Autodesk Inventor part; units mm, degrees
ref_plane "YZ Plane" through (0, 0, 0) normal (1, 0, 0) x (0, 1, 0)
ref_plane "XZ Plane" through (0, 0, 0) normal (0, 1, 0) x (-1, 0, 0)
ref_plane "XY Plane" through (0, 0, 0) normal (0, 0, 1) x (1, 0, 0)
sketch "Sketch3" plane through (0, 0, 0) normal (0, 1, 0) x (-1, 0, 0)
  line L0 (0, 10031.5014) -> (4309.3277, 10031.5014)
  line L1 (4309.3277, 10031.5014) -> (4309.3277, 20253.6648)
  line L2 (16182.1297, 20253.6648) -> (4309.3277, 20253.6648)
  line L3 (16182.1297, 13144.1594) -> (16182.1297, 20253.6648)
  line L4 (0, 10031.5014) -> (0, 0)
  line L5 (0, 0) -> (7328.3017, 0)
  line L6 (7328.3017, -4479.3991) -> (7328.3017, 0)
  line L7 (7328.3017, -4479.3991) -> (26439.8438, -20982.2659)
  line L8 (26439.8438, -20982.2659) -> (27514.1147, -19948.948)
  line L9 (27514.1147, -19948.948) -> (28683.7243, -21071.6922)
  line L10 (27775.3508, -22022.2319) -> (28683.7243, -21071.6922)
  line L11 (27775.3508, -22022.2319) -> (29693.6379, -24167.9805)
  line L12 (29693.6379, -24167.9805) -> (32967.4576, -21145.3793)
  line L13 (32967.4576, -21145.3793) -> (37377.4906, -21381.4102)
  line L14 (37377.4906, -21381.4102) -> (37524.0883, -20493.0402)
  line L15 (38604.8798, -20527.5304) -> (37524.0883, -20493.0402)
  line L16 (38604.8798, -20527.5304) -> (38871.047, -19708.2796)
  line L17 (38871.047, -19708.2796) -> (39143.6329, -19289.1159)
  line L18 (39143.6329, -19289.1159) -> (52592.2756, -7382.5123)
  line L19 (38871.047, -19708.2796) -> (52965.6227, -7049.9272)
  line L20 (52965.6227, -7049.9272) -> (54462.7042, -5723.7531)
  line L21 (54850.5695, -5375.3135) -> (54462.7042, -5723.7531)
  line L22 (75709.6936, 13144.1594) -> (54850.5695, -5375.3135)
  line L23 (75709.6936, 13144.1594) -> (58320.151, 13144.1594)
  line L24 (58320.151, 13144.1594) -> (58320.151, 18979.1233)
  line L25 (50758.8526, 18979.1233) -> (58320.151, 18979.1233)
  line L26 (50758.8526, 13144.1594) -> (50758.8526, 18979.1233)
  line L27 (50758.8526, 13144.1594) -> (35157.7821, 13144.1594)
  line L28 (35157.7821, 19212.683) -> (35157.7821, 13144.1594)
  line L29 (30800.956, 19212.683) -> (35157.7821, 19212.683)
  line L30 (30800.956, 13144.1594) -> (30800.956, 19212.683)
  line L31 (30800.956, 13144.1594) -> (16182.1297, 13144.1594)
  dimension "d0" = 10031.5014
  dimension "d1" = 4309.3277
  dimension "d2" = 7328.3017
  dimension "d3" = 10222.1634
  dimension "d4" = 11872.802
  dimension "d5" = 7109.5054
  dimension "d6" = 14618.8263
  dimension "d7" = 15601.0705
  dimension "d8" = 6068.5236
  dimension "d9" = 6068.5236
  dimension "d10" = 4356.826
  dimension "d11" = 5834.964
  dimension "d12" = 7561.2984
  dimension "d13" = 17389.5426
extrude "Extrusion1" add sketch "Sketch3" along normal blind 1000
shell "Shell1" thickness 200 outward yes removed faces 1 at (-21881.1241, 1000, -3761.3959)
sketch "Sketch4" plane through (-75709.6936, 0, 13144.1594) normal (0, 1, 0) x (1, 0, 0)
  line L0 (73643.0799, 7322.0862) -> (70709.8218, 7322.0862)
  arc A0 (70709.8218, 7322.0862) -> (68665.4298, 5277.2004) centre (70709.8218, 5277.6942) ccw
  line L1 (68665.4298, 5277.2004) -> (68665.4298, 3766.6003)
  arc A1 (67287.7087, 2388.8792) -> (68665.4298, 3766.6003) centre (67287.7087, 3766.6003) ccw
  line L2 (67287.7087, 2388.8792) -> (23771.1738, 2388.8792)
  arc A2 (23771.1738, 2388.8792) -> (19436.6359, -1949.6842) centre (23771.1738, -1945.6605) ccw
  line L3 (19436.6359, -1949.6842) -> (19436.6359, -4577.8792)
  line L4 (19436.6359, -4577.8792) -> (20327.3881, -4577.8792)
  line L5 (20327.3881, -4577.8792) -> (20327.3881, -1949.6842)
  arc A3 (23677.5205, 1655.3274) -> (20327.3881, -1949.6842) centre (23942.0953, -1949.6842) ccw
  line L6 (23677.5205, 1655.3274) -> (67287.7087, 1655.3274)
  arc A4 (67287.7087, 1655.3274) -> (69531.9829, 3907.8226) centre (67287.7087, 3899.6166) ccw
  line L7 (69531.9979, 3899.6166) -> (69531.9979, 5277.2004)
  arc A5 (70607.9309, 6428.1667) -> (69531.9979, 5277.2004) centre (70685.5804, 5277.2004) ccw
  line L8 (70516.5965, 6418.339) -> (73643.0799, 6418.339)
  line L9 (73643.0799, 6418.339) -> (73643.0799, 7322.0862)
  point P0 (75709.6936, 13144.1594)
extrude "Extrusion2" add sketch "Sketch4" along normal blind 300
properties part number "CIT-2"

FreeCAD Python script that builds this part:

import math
import FreeCAD as App
import Part
import Sketcher
Q = App.Units.Quantity


def faces_at(feature, points):
    """Names of the faces that lie closest to the given points."""
    faces = feature.Shape.Faces
    near = lambda p: min(range(len(faces)), key=lambda i: faces[i].distToShape(Part.Vertex(*p))[0])
    return sorted({f"Face{near(p) + 1}" for p in points})

doc = App.newDocument("Part")
body = doc.addObject("PartDesign::Body", "Body")

# Sketch on XZ plane
sketch1 = body.newObject("Sketcher::SketchObject", "Sketch")
sketch1.AttachmentSupport = (doc.getObject("XZ_Plane"), [""])
sketch1.MapMode = "FlatFace"
sketch1.addGeometry([
    Part.LineSegment(App.Vector(-4309.3277, 10031.5014, 0), App.Vector(0, 10031.5014, 0)),  # 0
    Part.LineSegment(App.Vector(0, 10031.5014, 0), App.Vector(0, 0, 0)),  # 1
    Part.LineSegment(App.Vector(0, 0, 0), App.Vector(-7328.3017, 0, 0)),  # 2
    Part.LineSegment(App.Vector(-7328.3017, 0, 0), App.Vector(-7328.3017, -4479.3991, 0)),  # 3
    Part.LineSegment(App.Vector(-7328.3017, -4479.3991, 0), App.Vector(-26439.8438, -20982.2659, 0)),  # 4
    Part.LineSegment(App.Vector(-26439.8438, -20982.2659, 0), App.Vector(-27514.1147, -19948.948, 0)),  # 5
    Part.LineSegment(App.Vector(-27514.1147, -19948.948, 0), App.Vector(-28683.7243, -21071.6922, 0)),  # 6
    Part.LineSegment(App.Vector(-28683.7243, -21071.6922, 0), App.Vector(-27775.3508, -22022.2319, 0)),  # 7
    Part.LineSegment(App.Vector(-27775.3508, -22022.2319, 0), App.Vector(-29693.6379, -24167.9805, 0)),  # 8
    Part.LineSegment(App.Vector(-29693.6379, -24167.9805, 0), App.Vector(-32967.4576, -21145.3793, 0)),  # 9
    Part.LineSegment(App.Vector(-32967.4576, -21145.3793, 0), App.Vector(-37377.4906, -21381.4102, 0)),  # 10
    Part.LineSegment(App.Vector(-37377.4906, -21381.4102, 0), App.Vector(-37524.0883, -20493.0402, 0)),  # 11
    Part.LineSegment(App.Vector(-37524.0883, -20493.0402, 0), App.Vector(-38604.8798, -20527.5304, 0)),  # 12
    Part.LineSegment(App.Vector(-38604.8798, -20527.5304, 0), App.Vector(-38871.047, -19708.2796, 0)),  # 13
    Part.LineSegment(App.Vector(-38871.047, -19708.2796, 0), App.Vector(-52965.6227, -7049.9272, 0)),  # 14
    Part.LineSegment(App.Vector(-52965.6227, -7049.9272, 0), App.Vector(-54462.7042, -5723.7531, 0)),  # 15
    Part.LineSegment(App.Vector(-54462.7042, -5723.7531, 0), App.Vector(-54850.5695, -5375.3135, 0)),  # 16
    Part.LineSegment(App.Vector(-54850.5695, -5375.3135, 0), App.Vector(-75709.6936, 13144.1594, 0)),  # 17
    Part.LineSegment(App.Vector(-75709.6936, 13144.1594, 0), App.Vector(-58320.151, 13144.1594, 0)),  # 18
    Part.LineSegment(App.Vector(-58320.151, 13144.1594, 0), App.Vector(-58320.151, 18979.1233, 0)),  # 19
    Part.LineSegment(App.Vector(-58320.151, 18979.1233, 0), App.Vector(-50758.8526, 18979.1233, 0)),  # 20
    Part.LineSegment(App.Vector(-50758.8526, 18979.1233, 0), App.Vector(-50758.8526, 13144.1594, 0)),  # 21
    Part.LineSegment(App.Vector(-50758.8526, 13144.1594, 0), App.Vector(-35157.7821, 13144.1594, 0)),  # 22
    Part.LineSegment(App.Vector(-35157.7821, 13144.1594, 0), App.Vector(-35157.7821, 19212.683, 0)),  # 23
    Part.LineSegment(App.Vector(-35157.7821, 19212.683, 0), App.Vector(-30800.956, 19212.683, 0)),  # 24
    Part.LineSegment(App.Vector(-30800.956, 19212.683, 0), App.Vector(-30800.956, 13144.1594, 0)),  # 25
    Part.LineSegment(App.Vector(-30800.956, 13144.1594, 0), App.Vector(-16182.1297, 13144.1594, 0)),  # 26
    Part.LineSegment(App.Vector(-16182.1297, 13144.1594, 0), App.Vector(-16182.1297, 20253.6648, 0)),  # 27
    Part.LineSegment(App.Vector(-16182.1297, 20253.6648, 0), App.Vector(-4309.3277, 20253.6648, 0)),  # 28
    Part.LineSegment(App.Vector(-4309.3277, 20253.6648, 0), App.Vector(-4309.3277, 10031.5014, 0)),  # 29
], False)
sketch1.addConstraint([
    Sketcher.Constraint("Coincident", 0, 2, 1, 1),
    Sketcher.Constraint("Coincident", 1, 2, 2, 1),
    Sketcher.Constraint("Coincident", 2, 2, 3, 1),
    Sketcher.Constraint("Coincident", 3, 2, 4, 1),
    Sketcher.Constraint("Coincident", 4, 2, 5, 1),
    Sketcher.Constraint("Coincident", 5, 2, 6, 1),
    Sketcher.Constraint("Coincident", 6, 2, 7, 1),
    Sketcher.Constraint("Coincident", 7, 2, 8, 1),
    Sketcher.Constraint("Coincident", 8, 2, 9, 1),
    Sketcher.Constraint("Coincident", 9, 2, 10, 1),
    Sketcher.Constraint("Coincident", 10, 2, 11, 1),
    Sketcher.Constraint("Coincident", 11, 2, 12, 1),
    Sketcher.Constraint("Coincident", 12, 2, 13, 1),
    Sketcher.Constraint("Coincident", 13, 2, 14, 1),
    Sketcher.Constraint("Coincident", 14, 2, 15, 1),
    Sketcher.Constraint("Coincident", 15, 2, 16, 1),
    Sketcher.Constraint("Coincident", 16, 2, 17, 1),
    Sketcher.Constraint("Coincident", 17, 2, 18, 1),
    Sketcher.Constraint("Coincident", 18, 2, 19, 1),
    Sketcher.Constraint("Coincident", 19, 2, 20, 1),
    Sketcher.Constraint("Coincident", 20, 2, 21, 1),
    Sketcher.Constraint("Coincident", 21, 2, 22, 1),
    Sketcher.Constraint("Coincident", 22, 2, 23, 1),
    Sketcher.Constraint("Coincident", 23, 2, 24, 1),
    Sketcher.Constraint("Coincident", 24, 2, 25, 1),
    Sketcher.Constraint("Coincident", 25, 2, 26, 1),
    Sketcher.Constraint("Coincident", 26, 2, 27, 1),
    Sketcher.Constraint("Coincident", 27, 2, 28, 1),
    Sketcher.Constraint("Coincident", 28, 2, 29, 1),
    Sketcher.Constraint("Coincident", 29, 2, 0, 1),
    Sketcher.Constraint("Horizontal", 0),
    Sketcher.Constraint("Vertical", 1),
    Sketcher.Constraint("Horizontal", 2),
    Sketcher.Constraint("Vertical", 3),
    Sketcher.Constraint("Horizontal", 18),
    Sketcher.Constraint("Vertical", 19),
    Sketcher.Constraint("Horizontal", 20),
    Sketcher.Constraint("Vertical", 21),
    Sketcher.Constraint("Horizontal", 22),
    Sketcher.Constraint("Vertical", 23),
    Sketcher.Constraint("Horizontal", 24),
    Sketcher.Constraint("Vertical", 25),
    Sketcher.Constraint("Horizontal", 26),
    Sketcher.Constraint("Vertical", 27),
    Sketcher.Constraint("Horizontal", 28),
    Sketcher.Constraint("Vertical", 29),
    Sketcher.Constraint("Coincident", 1, 2, -1, 1),
    Sketcher.Constraint("DistanceX", 24, 1, 24, 2, Q("4356.826 mm")),
    Sketcher.Constraint("DistanceX", 28, 1, 28, 2, Q("11872.802 mm")),
    Sketcher.Constraint("DistanceY", 19, 1, 19, 2, Q("5834.964 mm")),
    Sketcher.Constraint("DistanceY", 21, 2, 21, 1, Q("5834.964 mm")),
    Sketcher.Constraint("DistanceX", 0, 1, 0, 2, Q("4309.3277 mm")),
    Sketcher.Constraint("DistanceX", 2, 2, 2, 1, Q("7328.3017 mm")),
    Sketcher.Constraint("DistanceX", 18, 1, 18, 2, Q("17389.5426 mm")),
    Sketcher.Constraint("DistanceX", 20, 1, 20, 2, Q("7561.2984 mm")),
    Sketcher.Constraint("DistanceX", 22, 1, 22, 2, Q("15601.0705 mm")),
    Sketcher.Constraint("DistanceX", 26, 1, 26, 2, Q("14618.8263 mm")),
    Sketcher.Constraint("DistanceY", 1, 2, 1, 1, Q("10031.5014 mm")),
    Sketcher.Constraint("DistanceY", 23, 1, 23, 2, Q("6068.5236 mm")),
    Sketcher.Constraint("DistanceY", 25, 2, 25, 1, Q("6068.5236 mm")),
    Sketcher.Constraint("DistanceY", 27, 1, 27, 2, Q("7109.5054 mm")),
    Sketcher.Constraint("DistanceY", 29, 2, 29, 1, Q("10222.1634 mm")),
    Sketcher.Constraint("DistanceY", 3, 2, 3, 1, Q("4479.399 mm")),
    Sketcher.Constraint("DistanceY", 10, 2, 11, 2, Q("888.37 mm")),
    Sketcher.Constraint("DistanceY", 8, 2, 12, 2, Q("3640.45 mm")),
    Sketcher.Constraint("Distance", 13, Q("861.404 mm")),
    Sketcher.Constraint("Distance", 16, Q("521.392 mm")),
    Sketcher.Constraint("DistanceY", 4, 2, -1, 1, Q("20982.266 mm")),
    Sketcher.Constraint("DistanceY", 5, 2, -1, 1, Q("19948.948 mm")),
    Sketcher.Constraint("DistanceY", 7, 2, -1, 1, Q("22022.232 mm")),
    Sketcher.Constraint("DistanceX", 8, 2, -1, 1, Q("29693.638 mm")),
    Sketcher.Constraint("DistanceX", 13, 2, -1, 1, Q("38871.047 mm")),
    Sketcher.Constraint("DistanceY", 15, 2, -1, 1, Q("5723.753 mm")),
    Sketcher.Constraint("DistanceX", 4, 2, 3, 2, Q("19111.542 mm")),
    Sketcher.Constraint("DistanceX", 5, 2, 4, 2, Q("1074.271 mm")),
    Sketcher.Constraint("DistanceY", 6, 2, 3, 2, Q("16592.293 mm")),
    Sketcher.Constraint("DistanceX", 7, 2, 4, 2, Q("1335.507 mm")),
    Sketcher.Constraint("DistanceY", 9, 2, 6, 2, Q("73.687 mm")),
    Sketcher.Constraint("DistanceX", 9, 2, 5, 2, Q("5453.343 mm")),
    Sketcher.Constraint("DistanceX", 10, 2, 9, 2, Q("4410.033 mm")),
    Sketcher.Constraint("DistanceY", 10, 2, 9, 2, Q("236.031 mm")),
    Sketcher.Constraint("DistanceX", 11, 2, 6, 2, Q("8840.364 mm")),
    Sketcher.Constraint("DistanceY", 9, 2, 12, 2, Q("617.849 mm")),
    Sketcher.Constraint("DistanceX", 12, 2, 8, 2, Q("8911.242 mm")),
    Sketcher.Constraint("DistanceX", 14, 2, 12, 2, Q("14360.743 mm")),
    Sketcher.Constraint("DistanceY", 11, 2, 14, 2, Q("13443.113 mm")),
    Sketcher.Constraint("DistanceX", 15, 2, 11, 2, Q("16938.616 mm")),
    Sketcher.Constraint("DistanceY", 13, 2, 16, 2, Q("14332.966 mm")),
    Sketcher.Constraint("DistanceX", 17, 2, 16, 2, Q("20859.124 mm")),
])
pad1 = body.newObject("PartDesign::Pad", "Pad")
pad1.Profile = sketch1
pad1.Length = 1000
pad1.Reversed = True
doc.recompute()

thickness = body.newObject("PartDesign::Thickness", "Thickness")
thickness.Base = (pad1, faces_at(pad1, [(-21881.124, 1000, -3761.396)]))
thickness.Value = 200
thickness.Reversed = False
thickness.Join = "Intersection"

# Sketch on XZ plane
sketch2 = body.newObject("Sketcher::SketchObject", "Sketch001")
sketch2.AttachmentSupport = (doc.getObject("XZ_Plane"), [""])
sketch2.MapMode = "FlatFace"
sketch2.addGeometry([
    Part.LineSegment(App.Vector(-2066.6137, 6725.8204, 0), App.Vector(-2066.6137, 5822.0732, 0)),  # 0
    Part.LineSegment(App.Vector(-2066.6137, 5822.0732, 0), App.Vector(-4999.8718, 5822.0732, 0)),  # 1
    Part.ArcOfCircle(Part.Circle(App.Vector(-4999.8718, 7866.4652, 0), App.Vector(0, 0, 1), 2044.392), math.radians(179.986161), math.radians(270)),  # 2
    Part.LineSegment(App.Vector(-7044.2638, 7866.959, 0), App.Vector(-7044.2638, 9377.5591, 0)),  # 3
    Part.ArcOfCircle(Part.Circle(App.Vector(-8421.9849, 9377.5591, 0), App.Vector(0, 0, 1), 1377.7211), math.radians(0), math.radians(90)),  # 4
    Part.LineSegment(App.Vector(-8421.9849, 10755.2802, 0), App.Vector(-51938.5198, 10755.2802, 0)),  # 5
    Part.ArcOfCircle(Part.Circle(App.Vector(-51938.5198, 15089.8199, 0), App.Vector(0, 0, 1), 4334.5397), math.radians(179.946813), math.radians(270)),  # 6
    Part.LineSegment(App.Vector(-56273.0577, 15093.8436, 0), App.Vector(-56273.0577, 17722.0386, 0)),  # 7
    Part.LineSegment(App.Vector(-56273.0577, 17722.0386, 0), App.Vector(-55382.3055, 17722.0386, 0)),  # 8
    Part.LineSegment(App.Vector(-55382.3055, 17722.0386, 0), App.Vector(-55382.3055, 15093.8436, 0)),  # 9
    Part.ArcOfCircle(Part.Circle(App.Vector(-51767.5983, 15093.8436, 0), App.Vector(0, 0, 1), 3614.707244), math.radians(180), math.radians(265.80254)),  # 10
    Part.LineSegment(App.Vector(-52032.1731, 11488.832, 0), App.Vector(-8421.9849, 11488.832, 0)),  # 11
    Part.ArcOfCircle(Part.Circle(App.Vector(-8421.9849, 9244.5428, 0), App.Vector(0, 0, 1), 2244.2892), math.radians(0), math.radians(90)),  # 12
    Part.LineSegment(App.Vector(-6177.6957, 9244.5428, 0), App.Vector(-6177.6957, 7866.959, 0)),  # 13
    Part.ArcOfCircle(Part.Circle(App.Vector(-5024.1132, 7866.959, 0), App.Vector(0, 0, 1), 1153.582623), math.radians(180), math.radians(261.576651)),  # 14
    Part.LineSegment(App.Vector(-5193.0971, 6725.8204, 0), App.Vector(-2066.6137, 6725.8204, 0)),  # 15
], False)
sketch2.addConstraint([
    Sketcher.Constraint("Coincident", 0, 2, 1, 1),
    Sketcher.Constraint("Coincident", 1, 2, 2, 2),
    Sketcher.Constraint("Coincident", 2, 1, 3, 1),
    Sketcher.Constraint("Coincident", 3, 2, 4, 1),
    Sketcher.Constraint("Coincident", 4, 2, 5, 1),
    Sketcher.Constraint("Coincident", 5, 2, 6, 2),
    Sketcher.Constraint("Coincident", 6, 1, 7, 1),
    Sketcher.Constraint("Coincident", 7, 2, 8, 1),
    Sketcher.Constraint("Coincident", 8, 2, 9, 1),
    Sketcher.Constraint("Coincident", 9, 2, 10, 1),
    Sketcher.Constraint("Coincident", 10, 2, 11, 1),
    Sketcher.Constraint("Coincident", 11, 2, 12, 2),
    Sketcher.Constraint("Coincident", 12, 1, 13, 1),
    Sketcher.Constraint("Coincident", 13, 2, 14, 1),
    Sketcher.Constraint("Coincident", 14, 2, 15, 1),
    Sketcher.Constraint("Coincident", 15, 2, 0, 1),
    Sketcher.Constraint("Vertical", 0),
    Sketcher.Constraint("Horizontal", 1),
    Sketcher.Constraint("Vertical", 3),
    Sketcher.Constraint("Horizontal", 5),
    Sketcher.Constraint("Vertical", 7),
    Sketcher.Constraint("Horizontal", 8),
    Sketcher.Constraint("Vertical", 9),
    Sketcher.Constraint("Horizontal", 11),
    Sketcher.Constraint("Vertical", 13),
    Sketcher.Constraint("Horizontal", 15),
    Sketcher.Constraint("Horizontal", 4, 3, 3, 2),
    Sketcher.Constraint("Vertical", 4, 3, 12, 3),
    Sketcher.Constraint("Vertical", 2, 3, 1, 2),
    Sketcher.Constraint("Vertical", 6, 3, 5, 2),
    Sketcher.Constraint("Equal", 7, 9),
    Sketcher.Constraint("DistanceY", 3, 1, 3, 2, Q("1510.6 mm")),
    Sketcher.Constraint("Radius", 2, Q("2044.392 mm")),
    Sketcher.Constraint("Radius", 4, Q("1377.721 mm")),
    Sketcher.Constraint("Radius", 6, Q("4334.5397 mm")),
    Sketcher.Constraint("Radius", 10, Q("3614.7072 mm")),
    Sketcher.Constraint("Radius", 12, Q("2244.2892 mm")),
    Sketcher.Constraint("Radius", 14, Q("1153.5826 mm")),
    Sketcher.Constraint("DistanceY", 14, 3, 4, 3, Q("1510.6 mm")),
    Sketcher.Constraint("DistanceY", 13, 2, 3, 2, Q("1510.6 mm")),
    Sketcher.Constraint("DistanceX", 1, 2, 1, 1, Q("2933.258 mm")),
    Sketcher.Constraint("DistanceX", 5, 2, 5, 1, Q("43516.535 mm")),
    Sketcher.Constraint("DistanceY", 7, 1, 7, 2, Q("2628.195 mm")),
    Sketcher.Constraint("DistanceY", -1, 1, 6, 3, Q("15089.82 mm")),
    Sketcher.Constraint("DistanceX", 8, 1, 8, 2, Q("890.7522 mm")),
    Sketcher.Constraint("DistanceX", 11, 1, 11, 2, Q("43610.1882 mm")),
    Sketcher.Constraint("DistanceX", 15, 1, 15, 2, Q("3126.4834 mm")),
    Sketcher.Constraint("DistanceY", 0, 2, 0, 1, Q("903.7472 mm")),
    Sketcher.Constraint("DistanceY", 13, 2, 13, 1, Q("1377.5838 mm")),
    Sketcher.Constraint("DistanceX", 4, 3, -1, 1, Q("8421.985 mm")),
    Sketcher.Constraint("DistanceX", 11, 2, -1, 1, Q("8421.985 mm")),
    Sketcher.Constraint("DistanceY", -1, 1, 11, 2, Q("11488.832 mm")),
    Sketcher.Constraint("DistanceX", 6, 3, 4, 3, Q("43516.535 mm")),
    Sketcher.Constraint("DistanceY", 10, 3, 7, 2, Q("2628.195 mm")),
])
pad2 = body.newObject("PartDesign::Pad", "Pad001")
pad2.Profile = sketch2
pad2.Length = 300
pad2.Reversed = True

doc.recompute()
